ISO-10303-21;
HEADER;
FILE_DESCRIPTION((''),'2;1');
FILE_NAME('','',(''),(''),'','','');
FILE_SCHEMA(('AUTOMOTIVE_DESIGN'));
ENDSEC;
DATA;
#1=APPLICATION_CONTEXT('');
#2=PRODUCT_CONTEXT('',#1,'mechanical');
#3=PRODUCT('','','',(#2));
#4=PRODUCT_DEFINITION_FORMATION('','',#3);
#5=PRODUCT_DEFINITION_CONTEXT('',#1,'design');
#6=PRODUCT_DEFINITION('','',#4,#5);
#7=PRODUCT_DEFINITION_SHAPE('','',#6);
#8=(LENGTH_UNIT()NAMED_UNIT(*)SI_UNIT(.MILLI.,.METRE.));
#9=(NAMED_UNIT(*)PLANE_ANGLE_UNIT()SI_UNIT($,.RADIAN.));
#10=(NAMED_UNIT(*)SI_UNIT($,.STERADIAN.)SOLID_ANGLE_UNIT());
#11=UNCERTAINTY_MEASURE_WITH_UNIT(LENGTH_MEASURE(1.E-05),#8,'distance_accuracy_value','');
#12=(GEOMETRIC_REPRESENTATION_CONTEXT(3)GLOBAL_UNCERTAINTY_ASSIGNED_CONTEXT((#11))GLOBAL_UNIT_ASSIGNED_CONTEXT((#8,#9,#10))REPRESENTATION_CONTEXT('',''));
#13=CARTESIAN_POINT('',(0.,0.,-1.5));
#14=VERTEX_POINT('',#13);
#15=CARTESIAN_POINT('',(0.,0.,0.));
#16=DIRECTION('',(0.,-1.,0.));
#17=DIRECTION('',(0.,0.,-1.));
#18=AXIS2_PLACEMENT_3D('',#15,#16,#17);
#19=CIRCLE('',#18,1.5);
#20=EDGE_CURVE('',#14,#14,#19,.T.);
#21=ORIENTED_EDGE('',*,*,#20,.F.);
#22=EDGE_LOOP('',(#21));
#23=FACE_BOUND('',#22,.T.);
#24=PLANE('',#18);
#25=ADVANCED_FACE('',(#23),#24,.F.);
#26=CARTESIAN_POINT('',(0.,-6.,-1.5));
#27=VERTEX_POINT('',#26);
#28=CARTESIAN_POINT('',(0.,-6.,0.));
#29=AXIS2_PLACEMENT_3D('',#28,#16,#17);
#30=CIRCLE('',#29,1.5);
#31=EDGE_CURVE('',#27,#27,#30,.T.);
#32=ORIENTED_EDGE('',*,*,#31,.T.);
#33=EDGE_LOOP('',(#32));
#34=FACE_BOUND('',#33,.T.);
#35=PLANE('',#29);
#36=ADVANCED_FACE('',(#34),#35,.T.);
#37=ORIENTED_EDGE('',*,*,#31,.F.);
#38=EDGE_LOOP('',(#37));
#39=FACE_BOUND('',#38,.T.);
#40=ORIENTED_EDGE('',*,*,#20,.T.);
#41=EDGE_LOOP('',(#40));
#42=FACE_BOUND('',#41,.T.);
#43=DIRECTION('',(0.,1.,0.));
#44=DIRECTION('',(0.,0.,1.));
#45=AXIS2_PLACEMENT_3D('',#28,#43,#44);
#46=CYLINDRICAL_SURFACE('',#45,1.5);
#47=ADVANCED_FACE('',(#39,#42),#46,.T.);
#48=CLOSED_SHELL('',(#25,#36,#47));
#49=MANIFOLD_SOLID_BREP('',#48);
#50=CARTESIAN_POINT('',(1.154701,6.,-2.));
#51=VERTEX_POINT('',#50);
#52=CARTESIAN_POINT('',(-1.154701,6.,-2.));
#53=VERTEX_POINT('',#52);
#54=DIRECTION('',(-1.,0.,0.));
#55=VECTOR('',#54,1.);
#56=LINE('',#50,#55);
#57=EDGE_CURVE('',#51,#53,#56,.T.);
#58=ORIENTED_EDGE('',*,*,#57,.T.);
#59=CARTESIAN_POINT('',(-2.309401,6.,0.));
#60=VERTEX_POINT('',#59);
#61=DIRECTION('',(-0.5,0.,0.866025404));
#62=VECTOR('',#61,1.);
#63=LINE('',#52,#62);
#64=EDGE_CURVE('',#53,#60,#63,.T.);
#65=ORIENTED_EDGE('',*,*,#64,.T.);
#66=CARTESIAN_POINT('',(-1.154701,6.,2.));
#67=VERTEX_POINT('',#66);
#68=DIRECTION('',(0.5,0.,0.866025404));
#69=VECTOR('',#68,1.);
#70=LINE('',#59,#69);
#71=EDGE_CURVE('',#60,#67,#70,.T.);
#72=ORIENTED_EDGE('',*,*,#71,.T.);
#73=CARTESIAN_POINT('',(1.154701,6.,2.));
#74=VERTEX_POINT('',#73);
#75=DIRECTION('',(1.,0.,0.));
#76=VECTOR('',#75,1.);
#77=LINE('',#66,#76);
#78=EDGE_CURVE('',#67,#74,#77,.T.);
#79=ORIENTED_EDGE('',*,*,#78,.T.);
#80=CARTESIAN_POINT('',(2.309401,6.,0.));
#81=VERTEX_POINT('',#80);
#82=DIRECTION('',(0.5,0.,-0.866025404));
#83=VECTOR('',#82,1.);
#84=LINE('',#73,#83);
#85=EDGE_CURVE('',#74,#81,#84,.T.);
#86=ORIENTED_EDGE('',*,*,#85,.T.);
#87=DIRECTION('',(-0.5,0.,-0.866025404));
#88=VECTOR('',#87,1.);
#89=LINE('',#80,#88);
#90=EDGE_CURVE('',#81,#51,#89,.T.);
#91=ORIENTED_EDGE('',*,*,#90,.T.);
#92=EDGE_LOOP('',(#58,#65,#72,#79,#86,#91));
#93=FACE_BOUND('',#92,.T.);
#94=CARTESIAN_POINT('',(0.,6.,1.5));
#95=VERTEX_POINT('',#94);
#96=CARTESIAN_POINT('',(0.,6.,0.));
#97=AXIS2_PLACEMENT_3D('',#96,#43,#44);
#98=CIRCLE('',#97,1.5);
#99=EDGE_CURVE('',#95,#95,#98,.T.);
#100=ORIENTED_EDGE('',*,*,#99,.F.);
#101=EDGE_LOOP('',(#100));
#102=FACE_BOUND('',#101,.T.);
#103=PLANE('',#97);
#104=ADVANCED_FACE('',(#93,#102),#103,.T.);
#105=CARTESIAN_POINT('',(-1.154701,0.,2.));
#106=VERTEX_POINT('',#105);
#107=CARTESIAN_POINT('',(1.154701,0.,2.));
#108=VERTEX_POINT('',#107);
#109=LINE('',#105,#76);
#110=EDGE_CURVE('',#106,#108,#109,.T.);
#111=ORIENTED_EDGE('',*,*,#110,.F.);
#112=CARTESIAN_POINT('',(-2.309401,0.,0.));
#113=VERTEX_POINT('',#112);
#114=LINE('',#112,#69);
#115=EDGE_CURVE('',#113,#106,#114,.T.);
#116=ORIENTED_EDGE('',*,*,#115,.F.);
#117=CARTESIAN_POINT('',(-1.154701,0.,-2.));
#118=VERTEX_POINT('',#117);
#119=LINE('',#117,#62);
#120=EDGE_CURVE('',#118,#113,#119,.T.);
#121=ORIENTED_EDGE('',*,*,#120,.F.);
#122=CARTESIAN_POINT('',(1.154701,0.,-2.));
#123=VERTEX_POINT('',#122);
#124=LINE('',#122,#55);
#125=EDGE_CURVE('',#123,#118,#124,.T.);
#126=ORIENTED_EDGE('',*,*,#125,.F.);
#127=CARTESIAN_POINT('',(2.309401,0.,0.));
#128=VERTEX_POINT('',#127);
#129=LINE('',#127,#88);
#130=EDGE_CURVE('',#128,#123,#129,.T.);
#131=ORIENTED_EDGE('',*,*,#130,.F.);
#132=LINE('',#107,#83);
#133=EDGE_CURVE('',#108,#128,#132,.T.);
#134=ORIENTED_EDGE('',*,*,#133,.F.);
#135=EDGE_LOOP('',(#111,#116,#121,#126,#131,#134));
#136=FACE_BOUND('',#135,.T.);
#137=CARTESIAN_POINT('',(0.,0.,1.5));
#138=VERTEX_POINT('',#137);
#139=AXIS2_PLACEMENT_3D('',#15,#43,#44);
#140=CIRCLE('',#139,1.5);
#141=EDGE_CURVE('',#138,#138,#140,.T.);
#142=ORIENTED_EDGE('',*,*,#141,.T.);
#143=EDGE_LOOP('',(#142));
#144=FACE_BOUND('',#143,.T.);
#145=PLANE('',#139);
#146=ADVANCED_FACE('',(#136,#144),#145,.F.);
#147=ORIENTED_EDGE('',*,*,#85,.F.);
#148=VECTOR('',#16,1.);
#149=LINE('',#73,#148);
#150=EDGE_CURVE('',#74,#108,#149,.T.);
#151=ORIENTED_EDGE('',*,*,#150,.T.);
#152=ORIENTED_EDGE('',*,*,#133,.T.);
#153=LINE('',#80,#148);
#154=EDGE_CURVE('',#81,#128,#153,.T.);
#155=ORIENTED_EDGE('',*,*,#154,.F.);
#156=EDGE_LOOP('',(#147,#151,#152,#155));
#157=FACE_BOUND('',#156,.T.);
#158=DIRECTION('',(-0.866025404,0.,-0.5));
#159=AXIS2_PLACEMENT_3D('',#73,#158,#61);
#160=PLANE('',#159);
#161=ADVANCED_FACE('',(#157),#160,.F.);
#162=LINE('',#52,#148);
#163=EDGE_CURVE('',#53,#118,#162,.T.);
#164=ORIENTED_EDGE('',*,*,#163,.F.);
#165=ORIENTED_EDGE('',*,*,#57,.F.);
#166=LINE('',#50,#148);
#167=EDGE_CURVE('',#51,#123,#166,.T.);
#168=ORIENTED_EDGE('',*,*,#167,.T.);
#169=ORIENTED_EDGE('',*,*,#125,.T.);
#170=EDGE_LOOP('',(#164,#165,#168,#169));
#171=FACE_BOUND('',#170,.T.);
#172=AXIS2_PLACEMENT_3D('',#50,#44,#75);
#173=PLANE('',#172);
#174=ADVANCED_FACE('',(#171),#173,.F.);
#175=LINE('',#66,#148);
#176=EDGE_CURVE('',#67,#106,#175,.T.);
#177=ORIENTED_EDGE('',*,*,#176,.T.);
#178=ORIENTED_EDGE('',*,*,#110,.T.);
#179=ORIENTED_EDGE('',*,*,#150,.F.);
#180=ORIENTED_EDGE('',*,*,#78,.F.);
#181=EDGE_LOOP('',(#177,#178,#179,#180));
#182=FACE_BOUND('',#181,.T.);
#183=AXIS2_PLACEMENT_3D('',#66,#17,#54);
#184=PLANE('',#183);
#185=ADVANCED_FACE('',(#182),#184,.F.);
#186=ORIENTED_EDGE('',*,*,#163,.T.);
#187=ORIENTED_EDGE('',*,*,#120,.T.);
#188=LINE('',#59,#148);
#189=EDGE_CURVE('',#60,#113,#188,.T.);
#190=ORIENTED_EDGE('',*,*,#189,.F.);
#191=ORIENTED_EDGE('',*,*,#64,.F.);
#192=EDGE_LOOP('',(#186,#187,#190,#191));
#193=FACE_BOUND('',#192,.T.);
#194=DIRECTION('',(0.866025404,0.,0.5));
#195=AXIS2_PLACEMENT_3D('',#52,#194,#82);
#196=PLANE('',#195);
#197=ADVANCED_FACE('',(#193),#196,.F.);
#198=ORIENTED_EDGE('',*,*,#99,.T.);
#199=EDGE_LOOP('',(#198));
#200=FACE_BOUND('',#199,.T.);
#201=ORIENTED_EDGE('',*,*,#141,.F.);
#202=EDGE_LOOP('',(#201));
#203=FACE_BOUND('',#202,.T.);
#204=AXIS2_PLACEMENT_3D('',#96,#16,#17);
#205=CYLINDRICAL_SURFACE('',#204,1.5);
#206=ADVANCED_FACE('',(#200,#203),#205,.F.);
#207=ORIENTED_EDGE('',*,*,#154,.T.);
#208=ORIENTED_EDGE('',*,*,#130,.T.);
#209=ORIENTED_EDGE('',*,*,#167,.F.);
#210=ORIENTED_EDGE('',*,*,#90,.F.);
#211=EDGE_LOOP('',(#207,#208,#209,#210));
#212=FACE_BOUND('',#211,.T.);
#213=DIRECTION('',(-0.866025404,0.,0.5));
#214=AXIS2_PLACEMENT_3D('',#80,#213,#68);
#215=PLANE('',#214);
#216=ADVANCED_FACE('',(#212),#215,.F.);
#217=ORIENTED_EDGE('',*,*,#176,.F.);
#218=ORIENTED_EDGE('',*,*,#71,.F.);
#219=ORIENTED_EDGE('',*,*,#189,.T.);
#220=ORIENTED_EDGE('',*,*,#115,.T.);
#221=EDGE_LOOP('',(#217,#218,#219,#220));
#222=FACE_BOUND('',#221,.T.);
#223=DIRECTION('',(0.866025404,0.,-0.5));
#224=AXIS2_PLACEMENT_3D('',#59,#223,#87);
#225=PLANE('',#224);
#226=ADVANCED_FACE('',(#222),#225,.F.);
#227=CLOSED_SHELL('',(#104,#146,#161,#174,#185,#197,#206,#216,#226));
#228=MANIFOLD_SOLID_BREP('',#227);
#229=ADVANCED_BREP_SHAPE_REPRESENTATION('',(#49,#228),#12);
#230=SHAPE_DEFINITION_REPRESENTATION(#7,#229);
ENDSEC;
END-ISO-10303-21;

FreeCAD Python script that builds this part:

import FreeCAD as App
import Part
import Sketcher
Q = App.Units.Quantity

doc = App.newDocument("Part")
body = doc.addObject("PartDesign::Body", "Body")

# Sketch on XZ plane
sketch1 = body.newObject("Sketcher::SketchObject", "Sketch")
sketch1.AttachmentSupport = (doc.getObject("XZ_Plane"), [""])
sketch1.MapMode = "FlatFace"
sketch1.addGeometry([
    Part.LineSegment(App.Vector(1.154701, -2, 0), App.Vector(-1.154701, -2, 0)),  # 0
    Part.LineSegment(App.Vector(-1.154701, -2, 0), App.Vector(-2.309401, 0, 0)),  # 1
    Part.LineSegment(App.Vector(-2.309401, 0, 0), App.Vector(-1.154701, 2, 0)),  # 2
    Part.LineSegment(App.Vector(-1.154701, 2, 0), App.Vector(1.154701, 2, 0)),  # 3
    Part.LineSegment(App.Vector(1.154701, 2, 0), App.Vector(2.309401, 0, 0)),  # 4
    Part.LineSegment(App.Vector(2.309401, 0, 0), App.Vector(1.154701, -2, 0)),  # 5
    Part.Circle(App.Vector(0, 0, 0), App.Vector(0, 0, 1), 1.5),  # 6
], False)
sketch1.addConstraint([
    Sketcher.Constraint("Coincident", 0, 2, 1, 1),
    Sketcher.Constraint("Coincident", 1, 2, 2, 1),
    Sketcher.Constraint("Coincident", 2, 2, 3, 1),
    Sketcher.Constraint("Coincident", 3, 2, 4, 1),
    Sketcher.Constraint("Coincident", 4, 2, 5, 1),
    Sketcher.Constraint("Coincident", 5, 2, 0, 1),
    Sketcher.Constraint("Horizontal", 0),
    Sketcher.Constraint("Horizontal", 3),
    Sketcher.Constraint("Coincident", 6, 3, -1, 1),
    Sketcher.Constraint("Symmetric", 0, 2, 3, 2, -1, 1),
    Sketcher.Constraint("Symmetric", 1, 2, 4, 2, -1, 1),
    Sketcher.Constraint("PointOnObject", 1, 2, -1),
    Sketcher.Constraint("Parallel", 2, 5),
    Sketcher.Constraint("Vertical", 0, 2, 2, 2),
    Sketcher.Constraint("Diameter", 6, Q("3 mm")),
    Sketcher.Constraint("Angle", 1, Q("120 deg")),
    Sketcher.Constraint("DistanceY", 0, 2, -1, 1, Q("2 mm")),
    Sketcher.Constraint("DistanceX", 0, 2, 0, 1, Q("2.309401 mm")),
])
pad1 = body.newObject("PartDesign::Pad", "Pad")
pad1.Profile = sketch1
pad1.Length = 6
pad1.Reversed = True
body2 = doc.addObject("PartDesign::Body", "Body001")

# Sketch on XZ plane
sketch2 = body2.newObject("Sketcher::SketchObject", "Sketch001")
sketch2.AttachmentSupport = (doc.getObject("XZ_Plane001"), [""])
sketch2.MapMode = "FlatFace"
sketch2.addGeometry(Part.Circle(App.Vector(0, 0, 0), App.Vector(0, 0, 1), 1.5), False)
sketch2.addConstraint([
    Sketcher.Constraint("Coincident", 0, 3, -1, 1),
    Sketcher.Constraint("Diameter", 0, Q("3 mm")),
])
pad2 = body2.newObject("PartDesign::Pad", "Pad001")
pad2.Profile = sketch2
pad2.Length = 6

doc.recompute()
